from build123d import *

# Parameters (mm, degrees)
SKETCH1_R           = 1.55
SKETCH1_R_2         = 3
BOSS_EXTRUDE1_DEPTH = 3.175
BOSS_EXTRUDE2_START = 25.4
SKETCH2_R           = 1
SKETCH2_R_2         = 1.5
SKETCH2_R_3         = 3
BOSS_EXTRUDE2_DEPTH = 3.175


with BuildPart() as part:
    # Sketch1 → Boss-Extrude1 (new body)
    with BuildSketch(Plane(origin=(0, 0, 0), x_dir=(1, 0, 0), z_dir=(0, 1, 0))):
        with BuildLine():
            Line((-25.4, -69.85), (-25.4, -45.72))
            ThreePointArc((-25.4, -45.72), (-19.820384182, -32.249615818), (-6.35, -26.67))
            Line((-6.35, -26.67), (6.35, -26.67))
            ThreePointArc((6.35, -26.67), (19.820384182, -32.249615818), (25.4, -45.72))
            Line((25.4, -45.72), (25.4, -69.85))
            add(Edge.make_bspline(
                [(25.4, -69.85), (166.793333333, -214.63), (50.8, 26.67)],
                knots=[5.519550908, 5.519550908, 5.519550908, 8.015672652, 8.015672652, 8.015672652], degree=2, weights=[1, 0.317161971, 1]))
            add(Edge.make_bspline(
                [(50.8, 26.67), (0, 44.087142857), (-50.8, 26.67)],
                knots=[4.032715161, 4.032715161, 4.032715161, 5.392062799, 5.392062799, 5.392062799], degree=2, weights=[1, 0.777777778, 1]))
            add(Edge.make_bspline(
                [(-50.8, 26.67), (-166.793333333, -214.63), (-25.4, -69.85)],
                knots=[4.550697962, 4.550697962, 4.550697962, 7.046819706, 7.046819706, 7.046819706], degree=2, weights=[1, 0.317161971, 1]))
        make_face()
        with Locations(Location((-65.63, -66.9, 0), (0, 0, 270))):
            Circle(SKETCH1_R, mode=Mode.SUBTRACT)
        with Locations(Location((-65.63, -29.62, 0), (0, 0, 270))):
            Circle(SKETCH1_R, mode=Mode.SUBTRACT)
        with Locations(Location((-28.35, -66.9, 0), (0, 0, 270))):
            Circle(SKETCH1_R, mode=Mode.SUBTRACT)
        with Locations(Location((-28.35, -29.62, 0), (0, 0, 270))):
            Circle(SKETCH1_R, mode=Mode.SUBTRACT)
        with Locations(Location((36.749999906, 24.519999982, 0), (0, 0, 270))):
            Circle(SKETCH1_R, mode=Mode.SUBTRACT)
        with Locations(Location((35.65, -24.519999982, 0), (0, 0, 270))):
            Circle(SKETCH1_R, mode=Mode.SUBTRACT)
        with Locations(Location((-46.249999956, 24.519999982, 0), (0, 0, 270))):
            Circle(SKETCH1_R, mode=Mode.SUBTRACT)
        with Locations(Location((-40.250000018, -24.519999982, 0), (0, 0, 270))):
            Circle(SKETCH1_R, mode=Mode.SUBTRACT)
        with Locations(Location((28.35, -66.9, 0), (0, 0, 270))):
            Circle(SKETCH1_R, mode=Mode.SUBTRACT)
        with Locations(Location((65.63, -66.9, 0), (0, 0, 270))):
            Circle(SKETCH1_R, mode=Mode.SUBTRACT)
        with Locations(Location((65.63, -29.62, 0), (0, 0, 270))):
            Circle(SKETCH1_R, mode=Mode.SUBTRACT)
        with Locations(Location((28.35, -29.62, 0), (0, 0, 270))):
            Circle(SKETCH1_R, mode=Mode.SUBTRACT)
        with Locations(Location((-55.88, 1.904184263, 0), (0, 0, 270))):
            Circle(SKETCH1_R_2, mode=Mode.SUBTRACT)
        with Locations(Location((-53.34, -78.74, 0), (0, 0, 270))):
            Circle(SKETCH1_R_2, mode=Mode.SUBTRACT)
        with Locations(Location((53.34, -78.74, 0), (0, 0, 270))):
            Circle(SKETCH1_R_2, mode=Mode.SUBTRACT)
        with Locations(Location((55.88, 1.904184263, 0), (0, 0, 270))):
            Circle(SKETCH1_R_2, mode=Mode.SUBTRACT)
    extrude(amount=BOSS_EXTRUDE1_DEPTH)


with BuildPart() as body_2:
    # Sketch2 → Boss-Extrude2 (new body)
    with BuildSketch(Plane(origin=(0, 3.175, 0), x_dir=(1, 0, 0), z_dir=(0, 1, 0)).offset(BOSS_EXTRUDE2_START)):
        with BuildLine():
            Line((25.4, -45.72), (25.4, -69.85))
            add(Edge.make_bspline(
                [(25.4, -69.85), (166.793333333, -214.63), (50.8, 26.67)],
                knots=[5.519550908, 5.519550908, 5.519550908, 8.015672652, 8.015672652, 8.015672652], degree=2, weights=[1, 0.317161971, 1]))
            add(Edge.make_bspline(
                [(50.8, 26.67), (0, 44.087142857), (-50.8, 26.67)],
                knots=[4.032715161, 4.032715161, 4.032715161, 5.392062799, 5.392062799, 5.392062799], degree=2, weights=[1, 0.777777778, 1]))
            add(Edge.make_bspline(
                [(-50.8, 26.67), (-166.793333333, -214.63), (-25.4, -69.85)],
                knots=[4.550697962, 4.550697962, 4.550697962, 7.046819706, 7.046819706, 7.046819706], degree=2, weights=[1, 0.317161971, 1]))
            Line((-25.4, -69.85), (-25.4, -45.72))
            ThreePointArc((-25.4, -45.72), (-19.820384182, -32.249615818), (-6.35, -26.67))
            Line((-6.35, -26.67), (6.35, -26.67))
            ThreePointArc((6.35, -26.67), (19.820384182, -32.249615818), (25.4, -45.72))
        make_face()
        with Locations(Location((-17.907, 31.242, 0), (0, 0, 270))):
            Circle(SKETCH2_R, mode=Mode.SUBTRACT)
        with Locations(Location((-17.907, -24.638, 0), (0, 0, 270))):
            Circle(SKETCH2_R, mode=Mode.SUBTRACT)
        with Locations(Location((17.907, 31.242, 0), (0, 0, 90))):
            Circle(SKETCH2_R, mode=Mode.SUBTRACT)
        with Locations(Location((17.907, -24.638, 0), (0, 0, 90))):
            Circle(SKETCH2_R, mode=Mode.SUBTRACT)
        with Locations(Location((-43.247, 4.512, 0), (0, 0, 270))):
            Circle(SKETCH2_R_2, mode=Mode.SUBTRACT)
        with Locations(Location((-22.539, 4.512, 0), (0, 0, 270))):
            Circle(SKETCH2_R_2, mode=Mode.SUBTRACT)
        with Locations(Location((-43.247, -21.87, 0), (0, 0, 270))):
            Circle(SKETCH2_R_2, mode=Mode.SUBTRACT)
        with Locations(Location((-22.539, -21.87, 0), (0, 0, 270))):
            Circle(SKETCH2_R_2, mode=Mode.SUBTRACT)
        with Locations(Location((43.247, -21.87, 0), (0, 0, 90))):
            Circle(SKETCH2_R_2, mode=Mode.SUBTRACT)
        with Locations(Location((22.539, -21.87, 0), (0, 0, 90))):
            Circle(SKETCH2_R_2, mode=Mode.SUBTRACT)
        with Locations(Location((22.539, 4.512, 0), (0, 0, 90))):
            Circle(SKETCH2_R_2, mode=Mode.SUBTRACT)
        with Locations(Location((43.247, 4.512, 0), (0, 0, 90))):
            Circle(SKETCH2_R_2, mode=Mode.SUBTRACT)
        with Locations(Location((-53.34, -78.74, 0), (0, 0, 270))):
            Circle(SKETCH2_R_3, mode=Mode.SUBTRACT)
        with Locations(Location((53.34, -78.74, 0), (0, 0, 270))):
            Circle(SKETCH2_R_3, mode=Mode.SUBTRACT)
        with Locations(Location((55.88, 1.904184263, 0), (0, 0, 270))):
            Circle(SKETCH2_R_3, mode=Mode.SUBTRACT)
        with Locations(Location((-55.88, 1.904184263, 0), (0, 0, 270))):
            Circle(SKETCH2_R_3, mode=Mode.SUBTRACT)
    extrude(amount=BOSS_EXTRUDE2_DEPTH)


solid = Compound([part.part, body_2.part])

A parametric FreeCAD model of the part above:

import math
import FreeCAD as App
import Part
import Sketcher

V = App.Vector

doc = App.newDocument("Part")
body = doc.addObject("PartDesign::Body", "Body")

# Sketch on XZ plane
sketch1 = body.newObject("Sketcher::SketchObject", "Sketch")
sketch1.AttachmentSupport = (doc.getObject("XZ_Plane"), [""])
sketch1.MapMode = "FlatFace"
sketch1.addGeometry([
    Part.LineSegment(V(-25.4, 69.85, 0), V(-25.4, 45.72, 0)),  # 0
    Part.ArcOfCircle(Part.Circle(V(-6.35, 45.72, 0), V(0, 0, 1), 19.05), math.radians(180), math.radians(270)),  # 1
    Part.LineSegment(V(-6.35, 26.67, 0), V(6.35, 26.67, 0)),  # 2
    Part.ArcOfCircle(Part.Circle(V(6.35, 45.72, 0), V(0, 0, 1), 19.05), math.radians(-90), math.radians(0)),  # 3
    Part.LineSegment(V(25.4, 45.72, 0), V(25.4, 69.85, 0)),  # 4
    Part.BSplineCurve([V(25.4, 69.85, 0), V(166.793333, 214.63, 0), V(50.8, -26.67, 0)], [3, 3], [5.519550908, 8.015672652], False, 2, [1, 0.317161971, 1], False),  # 5
    Part.BSplineCurve([V(50.8, -26.67, 0), V(0, -44.087143, 0), V(-50.8, -26.67, 0)], [3, 3], [4.032715161, 5.392062799], False, 2, [1, 0.777777778, 1], False),  # 6
    Part.BSplineCurve([V(-50.8, -26.67, 0), V(-166.793333, 214.63, 0), V(-25.4, 69.85, 0)], [3, 3], [4.550697962, 7.046819706], False, 2, [1, 0.317161971, 1], False),  # 7
    Part.Circle(V(-53.34, 78.74, 0), V(0, 0, 1), 3),  # 8
    Part.Circle(V(-65.63, 66.9, 0), V(0, 0, 1), 1.55),  # 9
    Part.Circle(V(-28.35, 66.9, 0), V(0, 0, 1), 1.55),  # 10
    Part.Circle(V(-65.63, 29.62, 0), V(0, 0, 1), 1.55),  # 11
    Part.Circle(V(-28.35, 29.62, 0), V(0, 0, 1), 1.55),  # 12
    Part.Circle(V(28.35, 66.9, 0), V(0, 0, 1), 1.55),  # 13
    Part.Circle(V(53.34, 78.74, 0), V(0, 0, 1), 3),  # 14
    Part.Circle(V(65.63, 66.9, 0), V(0, 0, 1), 1.55),  # 15
    Part.Circle(V(28.35, 29.62, 0), V(0, 0, 1), 1.55),  # 16
    Part.Circle(V(65.63, 29.62, 0), V(0, 0, 1), 1.55),  # 17
    Part.Circle(V(-40.25, 24.52, 0), V(0, 0, 1), 1.55),  # 18
    Part.Circle(V(-55.88, -1.904184, 0), V(0, 0, 1), 3),  # 19
    Part.Circle(V(-46.25, -24.52, 0), V(0, 0, 1), 1.55),  # 20
    Part.Circle(V(35.65, 24.52, 0), V(0, 0, 1), 1.55),  # 21
    Part.Circle(V(55.88, -1.904184, 0), V(0, 0, 1), 3),  # 22
    Part.Circle(V(36.75, -24.52, 0), V(0, 0, 1), 1.55),  # 23
], False)
sketch1.addConstraint([
    Sketcher.Constraint("Block", 5),
    Sketcher.Constraint("Block", 6),
    Sketcher.Constraint("Block", 7),
    Sketcher.Constraint("Tangent", 0, 2, 1, 1),
    Sketcher.Constraint("Tangent", 1, 2, 2, 1),
    Sketcher.Constraint("Tangent", 2, 2, 3, 1),
    Sketcher.Constraint("Tangent", 3, 2, 4, 1),
    Sketcher.Constraint("Coincident", 4, 2, 5, 1),
    Sketcher.Constraint("Coincident", 7, 2, 0, 1),
    Sketcher.Constraint("Vertical", 0),
    Sketcher.Constraint("Horizontal", 2),
    Sketcher.Constraint("Vertical", 4),
    Sketcher.Constraint("Equal", 1, 3),
    Sketcher.Constraint("Equal", 9, 10),
    Sketcher.Constraint("Equal", 10, 11),
    Sketcher.Constraint("Equal", 11, 12),
    Sketcher.Constraint("Equal", 12, 13),
    Sketcher.Constraint("Equal", 8, 14),
    Sketcher.Constraint("Equal", 13, 15),
    Sketcher.Constraint("Equal", 15, 16),
    Sketcher.Constraint("Equal", 16, 17),
    Sketcher.Constraint("Equal", 17, 18),
    Sketcher.Constraint("Equal", 14, 19),
    Sketcher.Constraint("Equal", 18, 20),
    Sketcher.Constraint("Equal", 20, 21),
    Sketcher.Constraint("Equal", 19, 22),
    Sketcher.Constraint("Equal", 21, 23),
    Sketcher.Constraint("Symmetric", 10, 3, 13, 3, -2),
    Sketcher.Constraint("Symmetric", 8, 3, 14, 3, -2),
    Sketcher.Constraint("Symmetric", 9, 3, 15, 3, -2),
    Sketcher.Constraint("Symmetric", 12, 3, 16, 3, -2),
    Sketcher.Constraint("Symmetric", 11, 3, 17, 3, -2),
    Sketcher.Constraint("Symmetric", 19, 3, 22, 3, -2),
    Sketcher.Constraint("Horizontal", 9, 3, 10, 3),
    Sketcher.Constraint("Horizontal", 11, 3, 12, 3),
    Sketcher.Constraint("Horizontal", 18, 3, 21, 3),
    Sketcher.Constraint("Horizontal", 20, 3, 23, 3),
    Sketcher.Constraint("Vertical", 9, 3, 11, 3),
    Sketcher.Constraint("Vertical", 10, 3, 12, 3),
    Sketcher.Constraint("Diameter", 8, 6.0),
    Sketcher.Constraint("Diameter", 9, 3.1),
    Sketcher.Constraint("Radius", 1, 19.05),
    Sketcher.Constraint("DistanceX", 10, 3, 1, 3, 22.0),
    Sketcher.Constraint("DistanceX", 20, 3, 18, 3, 6.0),
    Sketcher.Constraint("DistanceX", 1, 3, 21, 3, 42.0),
    Sketcher.Constraint("DistanceY", 0, 2, 0, 1, 24.13),
    Sketcher.Constraint("DistanceY", -1, 1, 9, 3, 66.9),
    Sketcher.Constraint("DistanceY", 11, 3, 1, 3, 16.1),
    Sketcher.Constraint("DistanceX", 18, 3, 12, 3, 11.9),
    Sketcher.Constraint("DistanceY", 18, 3, 12, 3, 5.1),
    Sketcher.Constraint("DistanceX", 21, 3, 23, 3, 1.1),
    Sketcher.Constraint("DistanceX", 8, 3, -1, 1, 53.34),
    Sketcher.Constraint("DistanceY", -1, 1, 8, 3, 78.74),
    Sketcher.Constraint("DistanceX", 9, 3, -1, 1, 65.63),
    Sketcher.Constraint("DistanceX", 19, 3, -1, 1, 55.88),
    Sketcher.Constraint("DistanceY", 20, 3, -1, 1, 24.52),
    Sketcher.Constraint("DistanceY", 19, 3, -1, 1, 1.904184),
])
pad1 = body.newObject("PartDesign::Pad", "Pad")
pad1.Profile = sketch1
pad1.Length = 3.175
pad1.Reversed = True
body2 = doc.addObject("PartDesign::Body", "Body001")

# Sketch on XZ plane
sketch2 = body2.newObject("Sketcher::SketchObject", "Sketch001")
sketch2.AttachmentSupport = (doc.getObject("XZ_Plane001"), [""])
sketch2.MapMode = "FlatFace"
sketch2.AttachmentOffset = App.Placement(V(0, 0, -28.575), App.Rotation())
sketch2.addGeometry([
    Part.LineSegment(V(25.4, 45.72, 0), V(25.4, 69.85, 0)),  # 0
    Part.BSplineCurve([V(25.4, 69.85, 0), V(166.793333, 214.63, 0), V(50.8, -26.67, 0)], [3, 3], [5.519550908, 8.015672652], False, 2, [1, 0.317161971, 1], False),  # 1
    Part.BSplineCurve([V(50.8, -26.67, 0), V(0, -44.087143, 0), V(-50.8, -26.67, 0)], [3, 3], [4.032715161, 5.392062799], False, 2, [1, 0.777777778, 1], False),  # 2
    Part.BSplineCurve([V(-50.8, -26.67, 0), V(-166.793333, 214.63, 0), V(-25.4, 69.85, 0)], [3, 3], [4.550697962, 7.046819706], False, 2, [1, 0.317161971, 1], False),  # 3
    Part.LineSegment(V(-25.4, 69.85, 0), V(-25.4, 45.72, 0)),  # 4
    Part.ArcOfCircle(Part.Circle(V(-6.35, 45.72, 0), V(0, 0, 1), 19.05), math.radians(180), math.radians(270)),  # 5
    Part.LineSegment(V(-6.35, 26.67, 0), V(6.35, 26.67, 0)),  # 6
    Part.ArcOfCircle(Part.Circle(V(6.35, 45.72, 0), V(0, 0, 1), 19.05), math.radians(-90), math.radians(0)),  # 7
    Part.Circle(V(-53.34, 78.74, 0), V(0, 0, 1), 3),  # 8
    Part.Circle(V(53.34, 78.74, 0), V(0, 0, 1), 3),  # 9
    Part.Circle(V(-43.247, 21.87, 0), V(0, 0, 1), 1.5),  # 10
    Part.Circle(V(-55.88, -1.904184, 0), V(0, 0, 1), 3),  # 11
    Part.Circle(V(-22.539, 21.87, 0), V(0, 0, 1), 1.5),  # 12
    Part.Circle(V(-17.907, 24.638, 0), V(0, 0, 1), 1),  # 13
    Part.Circle(V(-43.247, -4.512, 0), V(0, 0, 1), 1.5),  # 14
    Part.Circle(V(-22.539, -4.512, 0), V(0, 0, 1), 1.5),  # 15
    Part.Circle(V(-17.907, -31.242, 0), V(0, 0, 1), 1),  # 16
    Part.Circle(V(17.907, 24.638, 0), V(0, 0, 1), 1),  # 17
    Part.Circle(V(22.539, 21.87, 0), V(0, 0, 1), 1.5),  # 18
    Part.Circle(V(43.247, 21.87, 0), V(0, 0, 1), 1.5),  # 19
    Part.Circle(V(55.88, -1.904184, 0), V(0, 0, 1), 3),  # 20
    Part.Circle(V(22.539, -4.512, 0), V(0, 0, 1), 1.5),  # 21
    Part.Circle(V(17.907, -31.242, 0), V(0, 0, 1), 1),  # 22
    Part.Circle(V(43.247, -4.512, 0), V(0, 0, 1), 1.5),  # 23
], False)
sketch2.addConstraint([
    Sketcher.Constraint("Block", 1),
    Sketcher.Constraint("Block", 2),
    Sketcher.Constraint("Block", 3),
    Sketcher.Constraint("Coincident", 0, 2, 1, 1),
    Sketcher.Constraint("Coincident", 3, 2, 4, 1),
    Sketcher.Constraint("Tangent", 4, 2, 5, 1),
    Sketcher.Constraint("Tangent", 5, 2, 6, 1),
    Sketcher.Constraint("Tangent", 6, 2, 7, 1),
    Sketcher.Constraint("Tangent", 7, 2, 0, 1),
    Sketcher.Constraint("Vertical", 0),
    Sketcher.Constraint("Vertical", 4),
    Sketcher.Constraint("Horizontal", 6),
    Sketcher.Constraint("Equal", 5, 7),
    Sketcher.Constraint("Equal", 8, 9),
    Sketcher.Constraint("Equal", 9, 11),
    Sketcher.Constraint("Equal", 10, 12),
    Sketcher.Constraint("Equal", 12, 14),
    Sketcher.Constraint("Equal", 14, 15),
    Sketcher.Constraint("Equal", 13, 16),
    Sketcher.Constraint("Equal", 16, 17),
    Sketcher.Constraint("Equal", 15, 18),
    Sketcher.Constraint("Equal", 18, 19),
    Sketcher.Constraint("Equal", 11, 20),
    Sketcher.Constraint("Equal", 19, 21),
    Sketcher.Constraint("Equal", 17, 22),
    Sketcher.Constraint("Equal", 21, 23),
    Sketcher.Constraint("Symmetric", 8, 3, 9, 3, -2),
    Sketcher.Constraint("Symmetric", 13, 3, 17, 3, -2),
    Sketcher.Constraint("Symmetric", 12, 3, 18, 3, -2),
    Sketcher.Constraint("Symmetric", 10, 3, 19, 3, -2),
    Sketcher.Constraint("Symmetric", 11, 3, 20, 3, -2),
    Sketcher.Constraint("Symmetric", 15, 3, 21, 3, -2),
    Sketcher.Constraint("Symmetric", 16, 3, 22, 3, -2),
    Sketcher.Constraint("Symmetric", 14, 3, 23, 3, -2),
    Sketcher.Constraint("Horizontal", 10, 3, 12, 3),
    Sketcher.Constraint("Horizontal", 14, 3, 15, 3),
    Sketcher.Constraint("Vertical", 10, 3, 14, 3),
    Sketcher.Constraint("Vertical", 12, 3, 15, 3),
    Sketcher.Constraint("Vertical", 13, 3, 16, 3),
    Sketcher.Constraint("Diameter", 8, 6.0),
    Sketcher.Constraint("Diameter", 10, 3.0),
    Sketcher.Constraint("Diameter", 13, 2.0),
    Sketcher.Constraint("Radius", 5, 19.05),
    Sketcher.Constraint("DistanceY", 0, 1, 0, 2, 24.13),
    Sketcher.Constraint("DistanceY", 12, 3, 5, 2, 4.8),
    Sketcher.Constraint("DistanceX", 8, 3, -1, 1, 53.34),
    Sketcher.Constraint("DistanceY", -1, 1, 8, 3, 78.74),
    Sketcher.Constraint("DistanceX", 11, 3, -1, 1, 55.88),
    Sketcher.Constraint("DistanceX", 10, 3, 13, 3, 25.34),
    Sketcher.Constraint("DistanceY", 14, 3, 13, 3, 29.15),
    Sketcher.Constraint("DistanceY", 16, 3, 15, 3, 26.73),
    Sketcher.Constraint("DistanceX", 10, 3, -1, 1, 43.247),
    Sketcher.Constraint("DistanceX", 12, 3, -1, 1, 22.539),
    Sketcher.Constraint("DistanceY", -1, 1, 13, 3, 24.638),
    Sketcher.Constraint("DistanceY", 11, 3, -1, 1, 1.904184),
])
pad2 = body2.newObject("PartDesign::Pad", "Pad001")
pad2.Profile = sketch2
pad2.Length = 3.175
pad2.Reversed = True

doc.recompute()
